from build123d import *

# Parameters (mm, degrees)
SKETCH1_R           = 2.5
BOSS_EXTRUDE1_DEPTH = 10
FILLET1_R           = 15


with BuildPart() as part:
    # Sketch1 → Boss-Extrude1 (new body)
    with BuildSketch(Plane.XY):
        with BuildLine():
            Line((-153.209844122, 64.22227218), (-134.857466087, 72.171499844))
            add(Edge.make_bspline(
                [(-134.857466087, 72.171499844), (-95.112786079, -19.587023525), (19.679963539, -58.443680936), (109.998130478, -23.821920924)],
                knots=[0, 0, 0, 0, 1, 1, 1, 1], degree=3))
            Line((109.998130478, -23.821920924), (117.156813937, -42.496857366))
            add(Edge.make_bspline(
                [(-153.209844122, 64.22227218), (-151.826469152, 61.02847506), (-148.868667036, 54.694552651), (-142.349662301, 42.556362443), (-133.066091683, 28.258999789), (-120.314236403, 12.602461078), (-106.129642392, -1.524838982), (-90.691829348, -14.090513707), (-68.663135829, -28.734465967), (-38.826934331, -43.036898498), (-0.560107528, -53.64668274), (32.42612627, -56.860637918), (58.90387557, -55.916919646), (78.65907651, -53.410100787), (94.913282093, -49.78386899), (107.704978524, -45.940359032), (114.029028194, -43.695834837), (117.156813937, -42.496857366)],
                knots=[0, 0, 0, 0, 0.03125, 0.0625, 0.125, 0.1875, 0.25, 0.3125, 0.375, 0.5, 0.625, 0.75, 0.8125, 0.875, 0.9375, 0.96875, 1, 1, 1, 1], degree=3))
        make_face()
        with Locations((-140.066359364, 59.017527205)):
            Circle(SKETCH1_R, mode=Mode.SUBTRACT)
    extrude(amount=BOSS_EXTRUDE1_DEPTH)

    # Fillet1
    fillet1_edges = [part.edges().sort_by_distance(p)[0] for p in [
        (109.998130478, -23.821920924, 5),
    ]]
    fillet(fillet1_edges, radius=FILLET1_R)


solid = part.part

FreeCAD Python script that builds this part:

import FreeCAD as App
import Part
import Sketcher
from FreeCAD import Vector
Q = App.Units.Quantity


def edges_at(feature, points):
    """Names of the edges that pass closest to the given points."""
    edges = feature.Shape.Edges
    near = lambda p: min(range(len(edges)), key=lambda i: edges[i].distToShape(Part.Vertex(*p))[0])
    return sorted({f"Edge{near(p) + 1}" for p in points})

doc = App.newDocument("Part")
body = doc.addObject("PartDesign::Body", "Body")

# Sketch on XY plane
sketch1 = body.newObject("Sketcher::SketchObject", "Sketch")
sketch1.AttachmentSupport = (doc.getObject("XY_Plane"), [""])
sketch1.MapMode = "FlatFace"
sketch1.addGeometry([
    Part.LineSegment(Vector(-134.857466, 72.1715, 0), Vector(-153.209844, 64.222272, 0)),  # 0
    Part.BSplineCurve([Vector(-153.209844, 64.222272, 0), Vector(-151.826469, 61.028475, 0), Vector(-148.868667, 54.694553, 0), Vector(-142.349662, 42.556362, 0), Vector(-133.066092, 28.259, 0), Vector(-120.314236, 12.602461, 0), Vector(-106.129642, -1.524839, 0), Vector(-90.691829, -14.090514, 0), Vector(-68.663136, -28.734466, 0), Vector(-38.826934, -43.036898, 0), Vector(-0.560108, -53.646683, 0), Vector(32.426126, -56.860638, 0), Vector(58.903876, -55.91692, 0), Vector(78.659077, -53.410101, 0), Vector(94.913282, -49.783869, 0), Vector(107.704979, -45.940359, 0), Vector(114.029028, -43.695835, 0), Vector(117.156814, -42.496857, 0)], [4, 1, 1, 1, 1, 1, 1, 1, 1, 1, 1, 1, 1, 1, 1, 4], [0, 0.03125, 0.0625, 0.125, 0.1875, 0.25, 0.3125, 0.375, 0.5, 0.625, 0.75, 0.8125, 0.875, 0.9375, 0.96875, 1], False, 3, [1, 1, 1, 1, 1, 1, 1, 1, 1, 1, 1, 1, 1, 1, 1, 1, 1, 1], False),  # 1
    Part.LineSegment(Vector(117.156814, -42.496857, 0), Vector(109.99813, -23.821921, 0)),  # 2
    Part.BSplineCurve([Vector(-134.857466, 72.1715, 0), Vector(-95.112786, -19.587024, 0), Vector(19.679964, -58.443681, 0), Vector(109.99813, -23.821921, 0)], [4, 4], [0, 1], False, 3, [1, 1, 1, 1], False),  # 3
    Part.Circle(Vector(-140.066359, 59.017527, 0), Vector(0, 0, 1), 2.5),  # 4
], False)
sketch1.addConstraint([
    Sketcher.Constraint("Block", 1),
    Sketcher.Constraint("Block", 3),
    Sketcher.Constraint("Coincident", 0, 2, 1, 1),
    Sketcher.Constraint("Coincident", 1, 2, 2, 1),
    Sketcher.Constraint("Coincident", 2, 2, 3, 2),
    Sketcher.Constraint("Coincident", 3, 1, 0, 1),
    Sketcher.Constraint("Diameter", 4, Q("5 mm")),
    Sketcher.Constraint("DistanceX", 4, 3, -1, 1, Q("140.066359 mm")),
    Sketcher.Constraint("DistanceY", 2, 2, 4, 3, Q("82.839448 mm")),
])
pad1 = body.newObject("PartDesign::Pad", "Pad")
pad1.Profile = sketch1
pad1.Length = 10
doc.recompute()

fillet = body.newObject("PartDesign::Fillet", "Fillet")
fillet.Base = (pad1, edges_at(pad1, [(109.998, -23.822, 5)]))
fillet.Radius = 15

doc.recompute()
